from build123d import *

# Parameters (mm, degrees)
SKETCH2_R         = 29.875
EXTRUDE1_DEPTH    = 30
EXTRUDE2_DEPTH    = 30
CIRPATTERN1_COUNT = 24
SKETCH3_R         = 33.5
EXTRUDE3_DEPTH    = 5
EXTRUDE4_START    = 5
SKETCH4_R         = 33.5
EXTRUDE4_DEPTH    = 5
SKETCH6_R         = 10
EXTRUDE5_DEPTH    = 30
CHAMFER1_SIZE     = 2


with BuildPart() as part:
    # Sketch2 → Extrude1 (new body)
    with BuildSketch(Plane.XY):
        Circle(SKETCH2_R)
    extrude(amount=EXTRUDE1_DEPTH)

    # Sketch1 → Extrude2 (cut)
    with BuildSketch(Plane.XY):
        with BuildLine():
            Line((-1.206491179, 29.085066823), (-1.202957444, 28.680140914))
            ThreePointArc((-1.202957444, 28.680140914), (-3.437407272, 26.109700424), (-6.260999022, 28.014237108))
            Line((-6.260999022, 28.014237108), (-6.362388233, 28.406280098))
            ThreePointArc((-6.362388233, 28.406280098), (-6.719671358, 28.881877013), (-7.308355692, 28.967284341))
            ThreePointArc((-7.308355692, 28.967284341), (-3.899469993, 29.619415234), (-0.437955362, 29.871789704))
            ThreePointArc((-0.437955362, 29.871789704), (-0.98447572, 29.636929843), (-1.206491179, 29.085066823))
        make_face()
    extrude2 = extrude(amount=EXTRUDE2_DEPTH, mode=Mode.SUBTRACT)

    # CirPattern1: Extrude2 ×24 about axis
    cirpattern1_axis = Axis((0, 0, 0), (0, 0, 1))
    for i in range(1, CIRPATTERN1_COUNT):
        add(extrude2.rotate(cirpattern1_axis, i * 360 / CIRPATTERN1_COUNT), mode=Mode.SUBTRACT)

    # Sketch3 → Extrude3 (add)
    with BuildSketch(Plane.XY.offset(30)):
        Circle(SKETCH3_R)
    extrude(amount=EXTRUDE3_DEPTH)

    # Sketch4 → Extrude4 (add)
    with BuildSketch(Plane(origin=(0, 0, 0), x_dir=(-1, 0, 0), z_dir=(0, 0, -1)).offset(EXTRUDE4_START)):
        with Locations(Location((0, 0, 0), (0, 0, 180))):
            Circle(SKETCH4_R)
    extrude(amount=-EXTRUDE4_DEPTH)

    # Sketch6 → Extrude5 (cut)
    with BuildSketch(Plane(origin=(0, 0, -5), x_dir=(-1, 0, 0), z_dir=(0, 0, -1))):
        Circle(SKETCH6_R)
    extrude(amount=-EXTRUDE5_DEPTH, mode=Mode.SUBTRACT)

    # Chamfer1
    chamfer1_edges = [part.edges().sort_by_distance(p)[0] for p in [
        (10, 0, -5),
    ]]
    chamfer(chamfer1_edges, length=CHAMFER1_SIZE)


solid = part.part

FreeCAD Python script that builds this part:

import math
import FreeCAD as App
import Part
import Sketcher
from FreeCAD import Vector
Q = App.Units.Quantity


def edges_at(feature, points):
    """Names of the edges that pass closest to the given points."""
    edges = feature.Shape.Edges
    near = lambda p: min(range(len(edges)), key=lambda i: edges[i].distToShape(Part.Vertex(*p))[0])
    return sorted({f"Edge{near(p) + 1}" for p in points})

doc = App.newDocument("Part")
body = doc.addObject("PartDesign::Body", "Body")

# Sketch on XY plane
sketch1 = doc.addObject("Sketcher::SketchObject", "Sketch")
body.addObject(sketch1)
sketch1.AttachmentSupport = (doc.XY_Plane, [""])
sketch1.MapMode = "FlatFace"
sketch1.addGeometry(Part.Circle(Vector(0, 0, 0), Vector(0, 0, 1), 30), False)
sketch1.addConstraint(Sketcher.Constraint("Coincident", 0, 3, -1, 1))
sketch1.addConstraint(Sketcher.Constraint("Diameter", 0, 59.75))
pad1 = doc.addObject("PartDesign::Pad", "Pad")
body.addObject(pad1)
pad1.Profile = sketch1
pad1.Length = 30

# Sketch on XY plane
sketch2 = doc.addObject("Sketcher::SketchObject", "Sketch001")
body.addObject(sketch2)
sketch2.AttachmentSupport = (doc.XY_Plane, [""])
sketch2.MapMode = "FlatFace"
sketch2.addGeometry(Part.LineSegment(Vector(-1.2, 28.68, 0), Vector(-1.21, 29.09, 0)), False)
sketch2.addGeometry(Part.ArcOfCircle(Part.Circle(Vector(-0.43, 29.09, 0), Vector(0, 0, 1), 0.78), math.radians(91), math.radians(180)), False)
sketch2.addGeometry(Part.ArcOfCircle(Part.Circle(Vector(0, 0, 0), Vector(0, 0, 1), 29.87), math.radians(90.84), math.radians(104.16)), False)
sketch2.addGeometry(Part.ArcOfCircle(Part.Circle(Vector(-7.12, 28.21, 0), Vector(0, 0, 1), 0.78), math.radians(15), math.radians(104)), False)
sketch2.addGeometry(Part.LineSegment(Vector(-6.36, 28.41, 0), Vector(-6.26, 28.01, 0)), False)
sketch2.addGeometry(Part.ArcOfCircle(Part.Circle(Vector(-3.77, 28.66, 0), Vector(0, 0, 1), 2.57), math.radians(-166), math.radians(0)), False)
sketch2.addConstraint(Sketcher.Constraint("Tangent", 0, 2, 1, 2))
sketch2.addConstraint(Sketcher.Constraint("Tangent", 1, 1, 2, 1))
sketch2.addConstraint(Sketcher.Constraint("Tangent", 2, 2, 3, 2))
sketch2.addConstraint(Sketcher.Constraint("Tangent", 3, 1, 4, 1))
sketch2.addConstraint(Sketcher.Constraint("Tangent", 4, 2, 5, 1))
sketch2.addConstraint(Sketcher.Constraint("Tangent", 5, 2, 0, 1))
sketch2.addConstraint(Sketcher.Constraint("Coincident", 2, 3, -1, 1))
sketch2.addConstraint(Sketcher.Constraint("Equal", 1, 3))
sketch2.addConstraint(Sketcher.Constraint("Equal", 0, 4))
sketch2.addConstraint(Sketcher.Constraint("Radius", 1, 0.78))
sketch2.addConstraint(Sketcher.Constraint("Radius", 5, 2.57))
sketch2.addConstraint(Sketcher.Constraint("Angle", 0, Q("90.5 deg")))
sketch2.addConstraint(Sketcher.Constraint("Angle", 4, Q("-75.5 deg")))
sketch2.addConstraint(Sketcher.Constraint("Radius", 2, 29.875))
sketch2.addConstraint(Sketcher.Constraint("DistanceX", 4, 2, -1, 1, 6.260999))
pocket1 = doc.addObject("PartDesign::Pocket", "Pocket")
body.addObject(pocket1)
pocket1.Profile = sketch2
pocket1.Length = 30
pocket1.Reversed = True
doc.recompute()

polarpattern = doc.addObject("PartDesign::PolarPattern", "PolarPattern")
body.addObject(polarpattern)
polarpattern.Originals = [pocket1]
polarpattern.Axis = (doc.Z_Axis, [""])
polarpattern.Angle = 360
polarpattern.Occurrences = 24
body.Tip = polarpattern

# Sketch on XY plane
sketch3 = doc.addObject("Sketcher::SketchObject", "Sketch002")
body.addObject(sketch3)
sketch3.AttachmentSupport = (doc.XY_Plane, [""])
sketch3.MapMode = "FlatFace"
sketch3.AttachmentOffset = App.Placement(Vector(0, 0, 30), App.Rotation())
sketch3.addGeometry(Part.Circle(Vector(0, 0, 0), Vector(0, 0, 1), 34), False)
sketch3.addConstraint(Sketcher.Constraint("Coincident", 0, 3, -1, 1))
sketch3.addConstraint(Sketcher.Constraint("Diameter", 0, 67.0))
pad2 = doc.addObject("PartDesign::Pad", "Pad001")
body.addObject(pad2)
pad2.Profile = sketch3
pad2.Length = 5

# Sketch on XY plane
sketch4 = doc.addObject("Sketcher::SketchObject", "Sketch003")
body.addObject(sketch4)
sketch4.AttachmentSupport = (doc.XY_Plane, [""])
sketch4.MapMode = "FlatFace"
sketch4.AttachmentOffset = App.Placement(Vector(0, 0, -5), App.Rotation())
sketch4.addGeometry(Part.Circle(Vector(0, 0, 0), Vector(0, 0, 1), 34), False)
sketch4.addConstraint(Sketcher.Constraint("Coincident", 0, 3, -1, 1))
sketch4.addConstraint(Sketcher.Constraint("Diameter", 0, 67.0))
pad3 = doc.addObject("PartDesign::Pad", "Pad002")
body.addObject(pad3)
pad3.Profile = sketch4
pad3.Length = 5

# Sketch on XY plane
sketch5 = doc.addObject("Sketcher::SketchObject", "Sketch004")
body.addObject(sketch5)
sketch5.AttachmentSupport = (doc.XY_Plane, [""])
sketch5.MapMode = "FlatFace"
sketch5.AttachmentOffset = App.Placement(Vector(0, 0, -5), App.Rotation())
sketch5.addGeometry(Part.Circle(Vector(0, 0, 0), Vector(0, 0, 1), 10), False)
sketch5.addConstraint(Sketcher.Constraint("Coincident", 0, 3, -1, 1))
sketch5.addConstraint(Sketcher.Constraint("Diameter", 0, 20.0))
pocket2 = doc.addObject("PartDesign::Pocket", "Pocket001")
body.addObject(pocket2)
pocket2.Profile = sketch5
pocket2.Length = 30
pocket2.Reversed = True
doc.recompute()

chamfer = doc.addObject("PartDesign::Chamfer", "Chamfer")
body.addObject(chamfer)
chamfer.Base = (pocket2, edges_at(pocket2, [(10, 0, -5)]))
chamfer.Size = 2

doc.recompute()
